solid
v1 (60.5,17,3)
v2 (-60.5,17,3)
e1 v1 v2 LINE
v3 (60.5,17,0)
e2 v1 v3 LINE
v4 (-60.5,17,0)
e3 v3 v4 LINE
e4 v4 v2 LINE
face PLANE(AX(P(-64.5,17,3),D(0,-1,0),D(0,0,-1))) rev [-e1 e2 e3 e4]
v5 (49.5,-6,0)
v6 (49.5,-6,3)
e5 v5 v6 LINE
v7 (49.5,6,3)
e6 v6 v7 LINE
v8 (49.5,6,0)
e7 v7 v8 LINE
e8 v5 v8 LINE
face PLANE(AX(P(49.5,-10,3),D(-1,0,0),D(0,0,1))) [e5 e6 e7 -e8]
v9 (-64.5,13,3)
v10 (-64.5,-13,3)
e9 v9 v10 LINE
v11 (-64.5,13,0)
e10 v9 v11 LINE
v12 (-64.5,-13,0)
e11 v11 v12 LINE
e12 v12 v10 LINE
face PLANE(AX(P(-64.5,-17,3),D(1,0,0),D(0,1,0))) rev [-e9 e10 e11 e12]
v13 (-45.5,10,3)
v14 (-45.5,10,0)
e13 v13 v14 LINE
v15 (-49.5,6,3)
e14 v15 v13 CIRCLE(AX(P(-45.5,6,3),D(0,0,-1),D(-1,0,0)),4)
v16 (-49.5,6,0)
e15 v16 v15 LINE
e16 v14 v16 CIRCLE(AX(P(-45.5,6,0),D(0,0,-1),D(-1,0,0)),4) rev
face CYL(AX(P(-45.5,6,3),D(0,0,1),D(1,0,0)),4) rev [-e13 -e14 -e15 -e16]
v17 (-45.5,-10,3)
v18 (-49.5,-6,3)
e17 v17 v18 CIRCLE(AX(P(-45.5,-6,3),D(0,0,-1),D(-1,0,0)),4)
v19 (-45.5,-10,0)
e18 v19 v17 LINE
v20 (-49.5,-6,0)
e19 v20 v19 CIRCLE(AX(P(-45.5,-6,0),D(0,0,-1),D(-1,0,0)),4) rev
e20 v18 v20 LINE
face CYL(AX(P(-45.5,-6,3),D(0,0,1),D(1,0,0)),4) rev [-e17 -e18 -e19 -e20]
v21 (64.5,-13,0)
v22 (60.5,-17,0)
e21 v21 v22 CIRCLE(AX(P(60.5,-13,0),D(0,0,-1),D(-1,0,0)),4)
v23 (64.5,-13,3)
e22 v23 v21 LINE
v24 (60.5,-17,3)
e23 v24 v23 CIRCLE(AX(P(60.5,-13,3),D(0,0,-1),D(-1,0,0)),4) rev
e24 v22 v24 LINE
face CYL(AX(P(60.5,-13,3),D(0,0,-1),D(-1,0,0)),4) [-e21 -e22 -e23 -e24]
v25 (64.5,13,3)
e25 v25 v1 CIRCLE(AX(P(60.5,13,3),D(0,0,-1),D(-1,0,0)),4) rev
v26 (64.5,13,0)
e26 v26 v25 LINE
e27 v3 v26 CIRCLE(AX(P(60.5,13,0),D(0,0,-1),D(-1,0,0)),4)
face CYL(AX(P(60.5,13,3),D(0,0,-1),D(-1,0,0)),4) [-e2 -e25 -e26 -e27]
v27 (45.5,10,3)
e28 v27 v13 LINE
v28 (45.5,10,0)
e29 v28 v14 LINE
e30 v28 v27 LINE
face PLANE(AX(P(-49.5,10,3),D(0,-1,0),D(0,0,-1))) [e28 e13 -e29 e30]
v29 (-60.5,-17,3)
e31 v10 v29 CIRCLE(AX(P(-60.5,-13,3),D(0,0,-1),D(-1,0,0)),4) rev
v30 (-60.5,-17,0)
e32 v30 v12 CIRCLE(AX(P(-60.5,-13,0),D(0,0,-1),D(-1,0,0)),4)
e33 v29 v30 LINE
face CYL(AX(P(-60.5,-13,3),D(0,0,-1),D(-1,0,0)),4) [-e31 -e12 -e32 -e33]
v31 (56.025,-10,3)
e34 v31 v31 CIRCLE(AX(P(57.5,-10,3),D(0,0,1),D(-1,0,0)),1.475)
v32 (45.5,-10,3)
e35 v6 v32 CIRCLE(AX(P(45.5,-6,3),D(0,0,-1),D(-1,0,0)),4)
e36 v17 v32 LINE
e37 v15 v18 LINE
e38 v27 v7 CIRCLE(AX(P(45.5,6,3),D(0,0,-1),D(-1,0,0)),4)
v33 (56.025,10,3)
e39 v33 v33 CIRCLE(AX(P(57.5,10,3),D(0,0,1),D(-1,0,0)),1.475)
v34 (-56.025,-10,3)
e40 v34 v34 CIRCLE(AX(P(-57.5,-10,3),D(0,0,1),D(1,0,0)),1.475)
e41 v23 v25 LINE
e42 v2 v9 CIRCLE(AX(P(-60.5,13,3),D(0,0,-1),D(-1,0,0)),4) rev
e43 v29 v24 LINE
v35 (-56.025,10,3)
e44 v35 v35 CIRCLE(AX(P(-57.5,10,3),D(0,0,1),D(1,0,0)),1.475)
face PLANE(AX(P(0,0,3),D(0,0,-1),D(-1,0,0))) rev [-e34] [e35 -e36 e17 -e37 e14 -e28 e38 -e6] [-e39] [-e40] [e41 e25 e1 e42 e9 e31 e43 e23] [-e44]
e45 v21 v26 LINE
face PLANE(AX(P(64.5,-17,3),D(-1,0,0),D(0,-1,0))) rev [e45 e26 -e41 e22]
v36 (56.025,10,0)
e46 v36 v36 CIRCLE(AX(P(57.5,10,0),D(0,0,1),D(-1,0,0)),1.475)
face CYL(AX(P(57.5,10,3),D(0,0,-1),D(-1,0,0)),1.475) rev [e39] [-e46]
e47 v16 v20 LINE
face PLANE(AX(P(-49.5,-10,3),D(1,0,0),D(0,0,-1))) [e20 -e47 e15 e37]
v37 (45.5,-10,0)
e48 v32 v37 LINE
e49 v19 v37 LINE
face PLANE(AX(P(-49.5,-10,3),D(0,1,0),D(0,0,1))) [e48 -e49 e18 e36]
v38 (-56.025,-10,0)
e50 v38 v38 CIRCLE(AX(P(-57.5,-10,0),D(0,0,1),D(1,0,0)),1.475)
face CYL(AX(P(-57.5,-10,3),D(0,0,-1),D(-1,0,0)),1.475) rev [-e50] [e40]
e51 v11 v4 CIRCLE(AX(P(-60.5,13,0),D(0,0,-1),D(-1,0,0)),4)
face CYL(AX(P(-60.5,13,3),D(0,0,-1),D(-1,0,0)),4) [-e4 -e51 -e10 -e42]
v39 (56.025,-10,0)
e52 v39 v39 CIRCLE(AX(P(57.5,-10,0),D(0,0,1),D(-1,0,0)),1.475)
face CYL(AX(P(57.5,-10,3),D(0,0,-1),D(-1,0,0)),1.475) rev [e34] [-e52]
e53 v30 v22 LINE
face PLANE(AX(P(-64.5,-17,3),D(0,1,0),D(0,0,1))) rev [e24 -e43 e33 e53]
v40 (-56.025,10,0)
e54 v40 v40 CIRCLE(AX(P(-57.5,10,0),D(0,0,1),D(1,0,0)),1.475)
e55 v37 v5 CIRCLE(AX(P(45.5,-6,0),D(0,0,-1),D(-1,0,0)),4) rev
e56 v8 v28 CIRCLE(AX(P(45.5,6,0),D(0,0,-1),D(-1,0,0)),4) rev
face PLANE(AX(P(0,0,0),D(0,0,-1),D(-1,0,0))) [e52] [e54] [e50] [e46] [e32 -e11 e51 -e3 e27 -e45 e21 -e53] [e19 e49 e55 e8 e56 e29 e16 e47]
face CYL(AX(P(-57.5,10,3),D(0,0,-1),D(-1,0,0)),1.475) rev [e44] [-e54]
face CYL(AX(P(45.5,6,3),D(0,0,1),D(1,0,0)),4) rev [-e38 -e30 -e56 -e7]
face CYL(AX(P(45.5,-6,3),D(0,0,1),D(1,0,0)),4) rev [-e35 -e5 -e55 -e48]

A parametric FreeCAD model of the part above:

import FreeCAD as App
import Part
import Sketcher

V = App.Vector
Q = App.Units.Quantity


def edges_at(feature, points):
    """Names of the edges that pass closest to the given points."""
    edges = feature.Shape.Edges
    near = lambda p: min(range(len(edges)), key=lambda i: edges[i].distToShape(Part.Vertex(*p))[0])
    return sorted({f"Edge{near(p) + 1}" for p in points})

doc = App.newDocument("Part")
body = doc.addObject("PartDesign::Body", "Body")

# Sketch on XY plane
sketch1 = body.newObject("Sketcher::SketchObject", "Sketch")
sketch1.AttachmentSupport = (doc.getObject("XY_Plane"), [""])
sketch1.MapMode = "FlatFace"
sketch1.addGeometry([
    Part.LineSegment(V(-64.5, 17, 0), V(-64.5, -17, 0)),  # 0
    Part.LineSegment(V(-64.5, -17, 0), V(64.5, -17, 0)),  # 1
    Part.LineSegment(V(64.5, -17, 0), V(64.5, 17, 0)),  # 2
    Part.LineSegment(V(64.5, 17, 0), V(-64.5, 17, 0)),  # 3
    Part.Circle(V(-57.5, -10, 0), V(0, 0, 1), 1.5),  # 4
    Part.Circle(V(57.5, -10, 0), V(0, 0, 1), 1.5),  # 5
    Part.Circle(V(-57.5, 10, 0), V(0, 0, 1), 1.5),  # 6
    Part.LineSegment(V(49.5, -10, 0), V(-49.5, -10, 0)),  # 7
    Part.LineSegment(V(-49.5, -10, 0), V(-49.5, 10, 0)),  # 8
    Part.LineSegment(V(-49.5, 10, 0), V(49.5, 10, 0)),  # 9
    Part.LineSegment(V(49.5, 10, 0), V(49.5, -10, 0)),  # 10
    Part.Circle(V(57.5, 10, 0), V(0, 0, 1), 1.5),  # 11
], False)
sketch1.addConstraint([
    Sketcher.Constraint("Coincident", 0, 2, 1, 1),
    Sketcher.Constraint("Coincident", 1, 2, 2, 1),
    Sketcher.Constraint("Coincident", 2, 2, 3, 1),
    Sketcher.Constraint("Coincident", 3, 2, 0, 1),
    Sketcher.Constraint("Coincident", 7, 2, 8, 1),
    Sketcher.Constraint("Coincident", 8, 2, 9, 1),
    Sketcher.Constraint("Coincident", 9, 2, 10, 1),
    Sketcher.Constraint("Coincident", 10, 2, 7, 1),
    Sketcher.Constraint("Vertical", 0),
    Sketcher.Constraint("Horizontal", 1),
    Sketcher.Constraint("Vertical", 2),
    Sketcher.Constraint("Horizontal", 3),
    Sketcher.Constraint("Horizontal", 7),
    Sketcher.Constraint("Vertical", 8),
    Sketcher.Constraint("Horizontal", 9),
    Sketcher.Constraint("Vertical", 10),
    Sketcher.Constraint("Equal", 4, 5),
    Sketcher.Constraint("Equal", 5, 6),
    Sketcher.Constraint("Equal", 6, 11),
    Sketcher.Constraint("Symmetric", 5, 3, 6, 3, -1, 1),
    Sketcher.Constraint("Symmetric", 4, 3, 11, 3, -1, 1),
    Sketcher.Constraint("Symmetric", 0, 2, 2, 2, -1, 1),
    Sketcher.Constraint("Symmetric", 7, 2, 9, 2, -1, 1),
    Sketcher.Constraint("Symmetric", 4, 3, 5, 3, -2),
    Sketcher.Constraint("Horizontal", 5, 3, 7, 2),
    Sketcher.Constraint("Diameter", 4, Q("2.95 mm")),
    Sketcher.Constraint("DistanceX", 1, 1, 1, 2, Q("129 mm")),
    Sketcher.Constraint("DistanceX", 7, 2, 7, 1, Q("99 mm")),
    Sketcher.Constraint("DistanceY", 0, 2, 0, 1, Q("34 mm")),
    Sketcher.Constraint("DistanceY", 8, 1, 8, 2, Q("20 mm")),
    Sketcher.Constraint("DistanceX", 4, 3, 5, 3, Q("115 mm")),
])
pad1 = body.newObject("PartDesign::Pad", "Pad")
pad1.Profile = sketch1
pad1.Length = 3
doc.recompute()

fillet = body.newObject("PartDesign::Fillet", "Fillet")
fillet.Base = (pad1, edges_at(pad1, [
    (49.5, -10, 1.5),
    (49.5, 10, 1.5),
    (-49.5, 10, 1.5),
    (-49.5, -10, 1.5),
    (64.5, -17, 1.5),
    (-64.5, -17, 1.5),
    (-64.5, 17, 1.5),
    (64.5, 17, 1.5),
]))
fillet.Radius = 4

doc.recompute()
